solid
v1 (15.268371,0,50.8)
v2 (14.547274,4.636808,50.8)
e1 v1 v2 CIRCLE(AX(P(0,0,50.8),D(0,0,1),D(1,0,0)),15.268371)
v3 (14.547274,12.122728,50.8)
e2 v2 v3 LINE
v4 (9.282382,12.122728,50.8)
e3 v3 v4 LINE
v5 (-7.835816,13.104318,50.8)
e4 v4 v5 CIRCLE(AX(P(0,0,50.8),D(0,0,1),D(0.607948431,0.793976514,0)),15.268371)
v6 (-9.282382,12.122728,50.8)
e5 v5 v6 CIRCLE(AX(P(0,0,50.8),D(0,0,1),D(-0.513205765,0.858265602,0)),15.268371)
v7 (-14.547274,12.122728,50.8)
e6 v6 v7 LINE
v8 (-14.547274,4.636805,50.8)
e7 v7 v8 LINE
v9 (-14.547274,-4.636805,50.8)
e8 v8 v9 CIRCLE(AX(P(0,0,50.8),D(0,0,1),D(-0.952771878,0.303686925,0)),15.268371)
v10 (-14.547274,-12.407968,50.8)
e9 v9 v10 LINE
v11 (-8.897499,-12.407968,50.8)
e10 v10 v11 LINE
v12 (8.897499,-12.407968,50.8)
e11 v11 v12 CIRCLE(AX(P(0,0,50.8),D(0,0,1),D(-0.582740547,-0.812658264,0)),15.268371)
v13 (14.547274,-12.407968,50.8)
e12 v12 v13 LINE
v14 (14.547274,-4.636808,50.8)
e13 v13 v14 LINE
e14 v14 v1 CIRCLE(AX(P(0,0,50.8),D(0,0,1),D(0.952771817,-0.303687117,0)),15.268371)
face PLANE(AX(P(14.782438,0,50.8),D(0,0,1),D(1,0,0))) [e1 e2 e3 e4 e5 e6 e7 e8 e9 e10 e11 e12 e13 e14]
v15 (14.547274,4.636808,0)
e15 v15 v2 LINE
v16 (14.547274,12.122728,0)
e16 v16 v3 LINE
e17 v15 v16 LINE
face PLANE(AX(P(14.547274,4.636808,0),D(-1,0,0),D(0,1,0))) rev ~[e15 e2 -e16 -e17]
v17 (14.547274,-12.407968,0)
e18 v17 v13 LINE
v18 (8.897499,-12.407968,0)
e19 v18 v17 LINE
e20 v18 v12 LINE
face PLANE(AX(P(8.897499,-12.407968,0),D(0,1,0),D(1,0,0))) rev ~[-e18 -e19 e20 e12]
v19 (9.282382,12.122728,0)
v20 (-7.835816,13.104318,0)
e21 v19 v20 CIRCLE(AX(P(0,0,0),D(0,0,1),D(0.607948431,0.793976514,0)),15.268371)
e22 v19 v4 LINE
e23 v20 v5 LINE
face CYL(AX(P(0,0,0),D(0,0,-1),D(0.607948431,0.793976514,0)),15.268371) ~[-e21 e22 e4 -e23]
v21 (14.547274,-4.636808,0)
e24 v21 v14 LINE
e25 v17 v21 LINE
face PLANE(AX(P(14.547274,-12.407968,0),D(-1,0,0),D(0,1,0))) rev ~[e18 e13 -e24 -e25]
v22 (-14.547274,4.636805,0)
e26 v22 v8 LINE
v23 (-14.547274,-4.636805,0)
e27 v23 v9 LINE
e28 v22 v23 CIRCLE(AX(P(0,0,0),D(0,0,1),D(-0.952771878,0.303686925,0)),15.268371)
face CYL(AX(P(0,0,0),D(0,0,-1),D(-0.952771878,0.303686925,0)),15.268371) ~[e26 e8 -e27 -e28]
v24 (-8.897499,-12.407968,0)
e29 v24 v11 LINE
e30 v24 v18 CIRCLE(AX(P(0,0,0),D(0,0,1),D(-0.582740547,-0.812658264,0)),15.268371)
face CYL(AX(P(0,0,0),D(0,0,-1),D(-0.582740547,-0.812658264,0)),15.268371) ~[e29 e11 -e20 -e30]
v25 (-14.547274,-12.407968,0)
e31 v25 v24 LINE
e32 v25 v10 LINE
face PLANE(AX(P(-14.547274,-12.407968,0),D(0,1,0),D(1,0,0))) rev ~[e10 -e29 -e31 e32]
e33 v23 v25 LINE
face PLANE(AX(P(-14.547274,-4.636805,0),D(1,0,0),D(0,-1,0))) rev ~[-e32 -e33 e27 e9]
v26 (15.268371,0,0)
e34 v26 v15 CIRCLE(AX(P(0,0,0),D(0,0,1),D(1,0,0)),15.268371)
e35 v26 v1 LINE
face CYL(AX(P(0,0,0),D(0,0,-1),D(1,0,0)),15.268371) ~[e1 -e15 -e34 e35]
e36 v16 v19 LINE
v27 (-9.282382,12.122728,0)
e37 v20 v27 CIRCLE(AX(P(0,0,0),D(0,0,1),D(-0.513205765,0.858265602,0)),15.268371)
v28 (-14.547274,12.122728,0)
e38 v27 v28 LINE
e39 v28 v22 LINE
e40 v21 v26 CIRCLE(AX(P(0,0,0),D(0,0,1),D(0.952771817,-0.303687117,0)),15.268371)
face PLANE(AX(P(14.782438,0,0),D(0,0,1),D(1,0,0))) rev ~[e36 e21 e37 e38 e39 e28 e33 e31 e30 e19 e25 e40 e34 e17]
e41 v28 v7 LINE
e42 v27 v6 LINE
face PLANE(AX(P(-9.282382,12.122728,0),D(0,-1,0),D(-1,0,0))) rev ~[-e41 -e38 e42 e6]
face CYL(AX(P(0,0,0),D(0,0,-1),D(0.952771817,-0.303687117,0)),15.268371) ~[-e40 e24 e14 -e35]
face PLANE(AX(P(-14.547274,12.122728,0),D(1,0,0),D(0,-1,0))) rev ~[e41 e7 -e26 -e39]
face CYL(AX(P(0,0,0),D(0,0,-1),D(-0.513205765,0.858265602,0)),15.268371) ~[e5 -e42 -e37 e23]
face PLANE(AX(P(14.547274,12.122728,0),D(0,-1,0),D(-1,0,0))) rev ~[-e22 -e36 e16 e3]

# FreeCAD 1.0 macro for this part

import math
import FreeCAD as App
import Part
import Sketcher

V = App.Vector
Q = App.Units.Quantity

doc = App.newDocument("Part")
body = doc.addObject("PartDesign::Body", "Body")

sketch1 = doc.addObject("Sketcher::SketchObject", "Sketch")
body.addObject(sketch1)
sketch1.AttachmentSupport = (doc.XY_Plane, [""])
sketch1.MapMode = "FlatFace"
sketch1.addGeometry([
    Part.ArcOfCircle(Part.Circle(V(0, 0, 0), V(0, 0, 1), 15.3), math.radians(-17.68), math.radians(0)),
    Part.ArcOfCircle(Part.Circle(V(0, 0, 0), V(0, 0, 1), 15.3), math.radians(0), math.radians(17.68)),
    Part.LineSegment(V(14.5, 4.6, 0), V(14.5, 12.1, 0)),
    Part.LineSegment(V(14.5, 12.1, 0), V(9.3, 12.1, 0)),
    Part.ArcOfCircle(Part.Circle(V(0, 0, 0), V(0, 0, 1), 15.3), math.radians(53), math.radians(121)),
    Part.ArcOfCircle(Part.Circle(V(0, 0, 0), V(0, 0, 1), 15.3), math.radians(120.88), math.radians(127.44)),
    Part.LineSegment(V(-9.3, 12.1, 0), V(-14.5, 12.1, 0)),
    Part.LineSegment(V(-14.5, 12.1, 0), V(-14.5, 4.6, 0)),
    Part.ArcOfCircle(Part.Circle(V(0, 0, 0), V(0, 0, 1), 15.3), math.radians(162), math.radians(198)),
    Part.LineSegment(V(-14.5, -4.6, 0), V(-14.5, -12.4, 0)),
    Part.LineSegment(V(-14.5, -12.4, 0), V(-8.9, -12.4, 0)),
    Part.ArcOfCircle(Part.Circle(V(0, 0, 0), V(0, 0, 1), 15.3), math.radians(-126), math.radians(-54)),
    Part.LineSegment(V(8.9, -12.4, 0), V(14.5, -12.4, 0)),
    Part.LineSegment(V(14.5, -12.4, 0), V(14.5, -4.6, 0)),
], False)
sketch1.addConstraint([
    Sketcher.Constraint("Tangent", 0, 2, 1, 1),
    Sketcher.Constraint("Coincident", 1, 2, 2, 1),
    Sketcher.Constraint("Coincident", 2, 2, 3, 1),
    Sketcher.Constraint("Coincident", 3, 2, 4, 1),
    Sketcher.Constraint("Tangent", 4, 2, 5, 1),
    Sketcher.Constraint("Coincident", 5, 2, 6, 1),
    Sketcher.Constraint("Coincident", 6, 2, 7, 1),
    Sketcher.Constraint("Coincident", 7, 2, 8, 1),
    Sketcher.Constraint("Coincident", 8, 2, 9, 1),
    Sketcher.Constraint("Coincident", 9, 2, 10, 1),
    Sketcher.Constraint("Coincident", 10, 2, 11, 1),
    Sketcher.Constraint("Coincident", 11, 2, 12, 1),
    Sketcher.Constraint("Coincident", 12, 2, 13, 1),
    Sketcher.Constraint("Coincident", 13, 2, 0, 1),
    Sketcher.Constraint("Vertical", 2),
    Sketcher.Constraint("Horizontal", 3),
    Sketcher.Constraint("Horizontal", 6),
    Sketcher.Constraint("Vertical", 7),
    Sketcher.Constraint("Vertical", 9),
    Sketcher.Constraint("Horizontal", 10),
    Sketcher.Constraint("Horizontal", 12),
    Sketcher.Constraint("Vertical", 13),
    Sketcher.Constraint("Coincident", 0, 3, -1, 1),
    Sketcher.Constraint("Coincident", 4, 3, -1, 1),
    Sketcher.Constraint("Coincident", 8, 3, -1, 1),
    Sketcher.Constraint("Coincident", 11, 3, -1, 1),
    Sketcher.Constraint("Equal", 0, 1),
    Sketcher.Constraint("Equal", 1, 4),
    Sketcher.Constraint("Equal", 4, 5),
    Sketcher.Constraint("Equal", 5, 8),
    Sketcher.Constraint("Equal", 8, 11),
    Sketcher.Constraint("Symmetric", 2, 2, 6, 2, -2),
    Sketcher.Constraint("Symmetric", 9, 2, 12, 2, -2),
    Sketcher.Constraint("PointOnObject", 0, 2, -1),
    Sketcher.Constraint("Vertical", 7, 2, 8, 2),
    Sketcher.Constraint("Radius", 0, Q("15.268371 mm")),
    Sketcher.Constraint("DistanceX", 3, 2, 3, 1, Q("5.264891 mm")),
    Sketcher.Constraint("DistanceY", 2, 1, 2, 2, Q("7.48592 mm")),
    Sketcher.Constraint("DistanceY", 13, 1, 13, 2, Q("7.77116 mm")),
    Sketcher.Constraint("DistanceY", 5, 2, 4, 2, Q("0.98159 mm")),
])
pad1 = doc.addObject("PartDesign::Pad", "Pad")
body.addObject(pad1)
pad1.Profile = sketch1
pad1.Length = Q("2 in")

doc.recompute()
